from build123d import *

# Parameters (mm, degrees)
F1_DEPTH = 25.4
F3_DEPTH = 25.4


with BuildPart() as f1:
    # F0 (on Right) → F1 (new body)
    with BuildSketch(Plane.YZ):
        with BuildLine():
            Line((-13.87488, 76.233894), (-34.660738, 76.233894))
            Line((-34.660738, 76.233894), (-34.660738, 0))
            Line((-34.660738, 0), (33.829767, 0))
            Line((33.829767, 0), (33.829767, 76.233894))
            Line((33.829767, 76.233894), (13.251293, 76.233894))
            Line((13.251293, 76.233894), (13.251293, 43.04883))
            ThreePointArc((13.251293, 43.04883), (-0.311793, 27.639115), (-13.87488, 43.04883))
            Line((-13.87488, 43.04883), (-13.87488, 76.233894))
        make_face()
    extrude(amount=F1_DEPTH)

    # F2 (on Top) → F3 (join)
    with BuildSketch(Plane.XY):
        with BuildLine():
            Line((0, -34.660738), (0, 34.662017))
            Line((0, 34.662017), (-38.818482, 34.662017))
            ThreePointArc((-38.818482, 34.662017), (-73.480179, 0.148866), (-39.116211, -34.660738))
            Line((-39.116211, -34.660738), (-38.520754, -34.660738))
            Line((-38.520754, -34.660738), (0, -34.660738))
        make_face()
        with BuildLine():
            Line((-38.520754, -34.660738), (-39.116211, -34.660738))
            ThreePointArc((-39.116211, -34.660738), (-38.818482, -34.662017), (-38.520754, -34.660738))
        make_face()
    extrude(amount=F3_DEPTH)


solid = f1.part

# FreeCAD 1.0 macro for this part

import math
import FreeCAD as App
import Part
import Sketcher
from FreeCAD import Vector
Q = App.Units.Quantity

doc = App.newDocument("Part")
body = doc.addObject("PartDesign::Body", "Body")

# Sketch on YZ plane
sketch1 = body.newObject("Sketcher::SketchObject", "Sketch")
sketch1.AttachmentSupport = (doc.getObject("YZ_Plane"), [""])
sketch1.MapMode = "FlatFace"
sketch1.addGeometry([
    Part.LineSegment(Vector(-14, 76, 0), Vector(-35, 76, 0)),  # 0
    Part.LineSegment(Vector(-35, 76, 0), Vector(-35, 0, 0)),  # 1
    Part.LineSegment(Vector(-35, 0, 0), Vector(34, 0, 0)),  # 2
    Part.LineSegment(Vector(34, 0, 0), Vector(34, 76, 0)),  # 3
    Part.LineSegment(Vector(34, 76, 0), Vector(13, 76, 0)),  # 4
    Part.LineSegment(Vector(13, 76, 0), Vector(13, 43, 0)),  # 5
    Part.ArcOfCircle(Part.Circle(Vector(0, 41, 0), Vector(0, 0, 1), 14), math.radians(173), math.radians(367)),  # 6
    Part.LineSegment(Vector(-14, 43, 0), Vector(-14, 76, 0)),  # 7
], False)
sketch1.addConstraint([
    Sketcher.Constraint("Coincident", 0, 2, 1, 1),
    Sketcher.Constraint("Coincident", 1, 2, 2, 1),
    Sketcher.Constraint("Coincident", 2, 2, 3, 1),
    Sketcher.Constraint("Coincident", 3, 2, 4, 1),
    Sketcher.Constraint("Coincident", 4, 2, 5, 1),
    Sketcher.Constraint("Coincident", 5, 2, 6, 2),
    Sketcher.Constraint("Coincident", 6, 1, 7, 1),
    Sketcher.Constraint("Coincident", 7, 2, 0, 1),
    Sketcher.Constraint("Horizontal", 0),
    Sketcher.Constraint("Vertical", 1),
    Sketcher.Constraint("Horizontal", 2),
    Sketcher.Constraint("Vertical", 3),
    Sketcher.Constraint("Horizontal", 4),
    Sketcher.Constraint("Vertical", 5),
    Sketcher.Constraint("Vertical", 7),
    Sketcher.Constraint("PointOnObject", 1, 2, -1),
    Sketcher.Constraint("Horizontal", 0, 2, 3, 2),
    Sketcher.Constraint("Horizontal", 5, 2, 6, 1),
    Sketcher.Constraint("Radius", 6, Q("13.673732 mm")),
    Sketcher.Constraint("DistanceX", 0, 2, 0, 1, Q("20.785858 mm")),
    Sketcher.Constraint("DistanceX", 2, 1, 2, 2, Q("68.490505 mm")),
    Sketcher.Constraint("DistanceX", 4, 2, 4, 1, Q("20.578474 mm")),
    Sketcher.Constraint("DistanceY", 1, 2, 1, 1, Q("76.233894 mm")),
    Sketcher.Constraint("DistanceY", 5, 2, 5, 1, Q("33.185064 mm")),
    Sketcher.Constraint("DistanceX", 0, 2, -1, 1, Q("34.660738 mm")),
])
pad1 = body.newObject("PartDesign::Pad", "Pad")
pad1.Profile = sketch1
pad1.Length = Q("1 in")

# Sketch on XY plane
sketch2 = body.newObject("Sketcher::SketchObject", "Sketch001")
sketch2.AttachmentSupport = (doc.getObject("XY_Plane"), [""])
sketch2.MapMode = "FlatFace"
sketch2.addGeometry([
    Part.LineSegment(Vector(0, -34.7, 0), Vector(0, 34.7, 0)),  # 0
    Part.LineSegment(Vector(0, 34.7, 0), Vector(-38.8, 34.7, 0)),  # 1
    Part.ArcOfCircle(Part.Circle(Vector(-38.8, 0, 0), Vector(0, 0, 1), 34.7), math.radians(90), math.radians(270)),  # 2
    Part.ArcOfCircle(Part.Circle(Vector(-38.8, 0, 0), Vector(0, 0, 1), 34.7), math.radians(-90.49), math.radians(-89.51)),  # 3
    Part.LineSegment(Vector(-38.5, -34.7, 0), Vector(0, -34.7, 0)),  # 4
], False)
sketch2.addConstraint([
    Sketcher.Constraint("Coincident", 0, 2, 1, 1),
    Sketcher.Constraint("Tangent", 1, 2, 2, 1),
    Sketcher.Constraint("Coincident", 2, 2, 3, 1),
    Sketcher.Constraint("Coincident", 3, 2, 4, 1),
    Sketcher.Constraint("Coincident", 4, 2, 0, 1),
    Sketcher.Constraint("Vertical", 0),
    Sketcher.Constraint("Horizontal", 1),
    Sketcher.Constraint("Horizontal", 4),
    Sketcher.Constraint("PointOnObject", 2, 3, -1),
    Sketcher.Constraint("PointOnObject", 0, 2, -2),
    Sketcher.Constraint("Horizontal", 2, 2, 3, 2),
    Sketcher.Constraint("Vertical", 2, 3, 3, 3),
    Sketcher.Constraint("Radius", 2, Q("34.662017 mm")),
    Sketcher.Constraint("Radius", 3, Q("34.653595 mm")),
    Sketcher.Constraint("DistanceX", 1, 2, 1, 1, Q("38.818482 mm")),
    Sketcher.Constraint("DistanceX", 4, 1, 4, 2, Q("38.520754 mm")),
])
pad2 = body.newObject("PartDesign::Pad", "Pad001")
pad2.Profile = sketch2
pad2.Length = Q("1 in")

doc.recompute()
